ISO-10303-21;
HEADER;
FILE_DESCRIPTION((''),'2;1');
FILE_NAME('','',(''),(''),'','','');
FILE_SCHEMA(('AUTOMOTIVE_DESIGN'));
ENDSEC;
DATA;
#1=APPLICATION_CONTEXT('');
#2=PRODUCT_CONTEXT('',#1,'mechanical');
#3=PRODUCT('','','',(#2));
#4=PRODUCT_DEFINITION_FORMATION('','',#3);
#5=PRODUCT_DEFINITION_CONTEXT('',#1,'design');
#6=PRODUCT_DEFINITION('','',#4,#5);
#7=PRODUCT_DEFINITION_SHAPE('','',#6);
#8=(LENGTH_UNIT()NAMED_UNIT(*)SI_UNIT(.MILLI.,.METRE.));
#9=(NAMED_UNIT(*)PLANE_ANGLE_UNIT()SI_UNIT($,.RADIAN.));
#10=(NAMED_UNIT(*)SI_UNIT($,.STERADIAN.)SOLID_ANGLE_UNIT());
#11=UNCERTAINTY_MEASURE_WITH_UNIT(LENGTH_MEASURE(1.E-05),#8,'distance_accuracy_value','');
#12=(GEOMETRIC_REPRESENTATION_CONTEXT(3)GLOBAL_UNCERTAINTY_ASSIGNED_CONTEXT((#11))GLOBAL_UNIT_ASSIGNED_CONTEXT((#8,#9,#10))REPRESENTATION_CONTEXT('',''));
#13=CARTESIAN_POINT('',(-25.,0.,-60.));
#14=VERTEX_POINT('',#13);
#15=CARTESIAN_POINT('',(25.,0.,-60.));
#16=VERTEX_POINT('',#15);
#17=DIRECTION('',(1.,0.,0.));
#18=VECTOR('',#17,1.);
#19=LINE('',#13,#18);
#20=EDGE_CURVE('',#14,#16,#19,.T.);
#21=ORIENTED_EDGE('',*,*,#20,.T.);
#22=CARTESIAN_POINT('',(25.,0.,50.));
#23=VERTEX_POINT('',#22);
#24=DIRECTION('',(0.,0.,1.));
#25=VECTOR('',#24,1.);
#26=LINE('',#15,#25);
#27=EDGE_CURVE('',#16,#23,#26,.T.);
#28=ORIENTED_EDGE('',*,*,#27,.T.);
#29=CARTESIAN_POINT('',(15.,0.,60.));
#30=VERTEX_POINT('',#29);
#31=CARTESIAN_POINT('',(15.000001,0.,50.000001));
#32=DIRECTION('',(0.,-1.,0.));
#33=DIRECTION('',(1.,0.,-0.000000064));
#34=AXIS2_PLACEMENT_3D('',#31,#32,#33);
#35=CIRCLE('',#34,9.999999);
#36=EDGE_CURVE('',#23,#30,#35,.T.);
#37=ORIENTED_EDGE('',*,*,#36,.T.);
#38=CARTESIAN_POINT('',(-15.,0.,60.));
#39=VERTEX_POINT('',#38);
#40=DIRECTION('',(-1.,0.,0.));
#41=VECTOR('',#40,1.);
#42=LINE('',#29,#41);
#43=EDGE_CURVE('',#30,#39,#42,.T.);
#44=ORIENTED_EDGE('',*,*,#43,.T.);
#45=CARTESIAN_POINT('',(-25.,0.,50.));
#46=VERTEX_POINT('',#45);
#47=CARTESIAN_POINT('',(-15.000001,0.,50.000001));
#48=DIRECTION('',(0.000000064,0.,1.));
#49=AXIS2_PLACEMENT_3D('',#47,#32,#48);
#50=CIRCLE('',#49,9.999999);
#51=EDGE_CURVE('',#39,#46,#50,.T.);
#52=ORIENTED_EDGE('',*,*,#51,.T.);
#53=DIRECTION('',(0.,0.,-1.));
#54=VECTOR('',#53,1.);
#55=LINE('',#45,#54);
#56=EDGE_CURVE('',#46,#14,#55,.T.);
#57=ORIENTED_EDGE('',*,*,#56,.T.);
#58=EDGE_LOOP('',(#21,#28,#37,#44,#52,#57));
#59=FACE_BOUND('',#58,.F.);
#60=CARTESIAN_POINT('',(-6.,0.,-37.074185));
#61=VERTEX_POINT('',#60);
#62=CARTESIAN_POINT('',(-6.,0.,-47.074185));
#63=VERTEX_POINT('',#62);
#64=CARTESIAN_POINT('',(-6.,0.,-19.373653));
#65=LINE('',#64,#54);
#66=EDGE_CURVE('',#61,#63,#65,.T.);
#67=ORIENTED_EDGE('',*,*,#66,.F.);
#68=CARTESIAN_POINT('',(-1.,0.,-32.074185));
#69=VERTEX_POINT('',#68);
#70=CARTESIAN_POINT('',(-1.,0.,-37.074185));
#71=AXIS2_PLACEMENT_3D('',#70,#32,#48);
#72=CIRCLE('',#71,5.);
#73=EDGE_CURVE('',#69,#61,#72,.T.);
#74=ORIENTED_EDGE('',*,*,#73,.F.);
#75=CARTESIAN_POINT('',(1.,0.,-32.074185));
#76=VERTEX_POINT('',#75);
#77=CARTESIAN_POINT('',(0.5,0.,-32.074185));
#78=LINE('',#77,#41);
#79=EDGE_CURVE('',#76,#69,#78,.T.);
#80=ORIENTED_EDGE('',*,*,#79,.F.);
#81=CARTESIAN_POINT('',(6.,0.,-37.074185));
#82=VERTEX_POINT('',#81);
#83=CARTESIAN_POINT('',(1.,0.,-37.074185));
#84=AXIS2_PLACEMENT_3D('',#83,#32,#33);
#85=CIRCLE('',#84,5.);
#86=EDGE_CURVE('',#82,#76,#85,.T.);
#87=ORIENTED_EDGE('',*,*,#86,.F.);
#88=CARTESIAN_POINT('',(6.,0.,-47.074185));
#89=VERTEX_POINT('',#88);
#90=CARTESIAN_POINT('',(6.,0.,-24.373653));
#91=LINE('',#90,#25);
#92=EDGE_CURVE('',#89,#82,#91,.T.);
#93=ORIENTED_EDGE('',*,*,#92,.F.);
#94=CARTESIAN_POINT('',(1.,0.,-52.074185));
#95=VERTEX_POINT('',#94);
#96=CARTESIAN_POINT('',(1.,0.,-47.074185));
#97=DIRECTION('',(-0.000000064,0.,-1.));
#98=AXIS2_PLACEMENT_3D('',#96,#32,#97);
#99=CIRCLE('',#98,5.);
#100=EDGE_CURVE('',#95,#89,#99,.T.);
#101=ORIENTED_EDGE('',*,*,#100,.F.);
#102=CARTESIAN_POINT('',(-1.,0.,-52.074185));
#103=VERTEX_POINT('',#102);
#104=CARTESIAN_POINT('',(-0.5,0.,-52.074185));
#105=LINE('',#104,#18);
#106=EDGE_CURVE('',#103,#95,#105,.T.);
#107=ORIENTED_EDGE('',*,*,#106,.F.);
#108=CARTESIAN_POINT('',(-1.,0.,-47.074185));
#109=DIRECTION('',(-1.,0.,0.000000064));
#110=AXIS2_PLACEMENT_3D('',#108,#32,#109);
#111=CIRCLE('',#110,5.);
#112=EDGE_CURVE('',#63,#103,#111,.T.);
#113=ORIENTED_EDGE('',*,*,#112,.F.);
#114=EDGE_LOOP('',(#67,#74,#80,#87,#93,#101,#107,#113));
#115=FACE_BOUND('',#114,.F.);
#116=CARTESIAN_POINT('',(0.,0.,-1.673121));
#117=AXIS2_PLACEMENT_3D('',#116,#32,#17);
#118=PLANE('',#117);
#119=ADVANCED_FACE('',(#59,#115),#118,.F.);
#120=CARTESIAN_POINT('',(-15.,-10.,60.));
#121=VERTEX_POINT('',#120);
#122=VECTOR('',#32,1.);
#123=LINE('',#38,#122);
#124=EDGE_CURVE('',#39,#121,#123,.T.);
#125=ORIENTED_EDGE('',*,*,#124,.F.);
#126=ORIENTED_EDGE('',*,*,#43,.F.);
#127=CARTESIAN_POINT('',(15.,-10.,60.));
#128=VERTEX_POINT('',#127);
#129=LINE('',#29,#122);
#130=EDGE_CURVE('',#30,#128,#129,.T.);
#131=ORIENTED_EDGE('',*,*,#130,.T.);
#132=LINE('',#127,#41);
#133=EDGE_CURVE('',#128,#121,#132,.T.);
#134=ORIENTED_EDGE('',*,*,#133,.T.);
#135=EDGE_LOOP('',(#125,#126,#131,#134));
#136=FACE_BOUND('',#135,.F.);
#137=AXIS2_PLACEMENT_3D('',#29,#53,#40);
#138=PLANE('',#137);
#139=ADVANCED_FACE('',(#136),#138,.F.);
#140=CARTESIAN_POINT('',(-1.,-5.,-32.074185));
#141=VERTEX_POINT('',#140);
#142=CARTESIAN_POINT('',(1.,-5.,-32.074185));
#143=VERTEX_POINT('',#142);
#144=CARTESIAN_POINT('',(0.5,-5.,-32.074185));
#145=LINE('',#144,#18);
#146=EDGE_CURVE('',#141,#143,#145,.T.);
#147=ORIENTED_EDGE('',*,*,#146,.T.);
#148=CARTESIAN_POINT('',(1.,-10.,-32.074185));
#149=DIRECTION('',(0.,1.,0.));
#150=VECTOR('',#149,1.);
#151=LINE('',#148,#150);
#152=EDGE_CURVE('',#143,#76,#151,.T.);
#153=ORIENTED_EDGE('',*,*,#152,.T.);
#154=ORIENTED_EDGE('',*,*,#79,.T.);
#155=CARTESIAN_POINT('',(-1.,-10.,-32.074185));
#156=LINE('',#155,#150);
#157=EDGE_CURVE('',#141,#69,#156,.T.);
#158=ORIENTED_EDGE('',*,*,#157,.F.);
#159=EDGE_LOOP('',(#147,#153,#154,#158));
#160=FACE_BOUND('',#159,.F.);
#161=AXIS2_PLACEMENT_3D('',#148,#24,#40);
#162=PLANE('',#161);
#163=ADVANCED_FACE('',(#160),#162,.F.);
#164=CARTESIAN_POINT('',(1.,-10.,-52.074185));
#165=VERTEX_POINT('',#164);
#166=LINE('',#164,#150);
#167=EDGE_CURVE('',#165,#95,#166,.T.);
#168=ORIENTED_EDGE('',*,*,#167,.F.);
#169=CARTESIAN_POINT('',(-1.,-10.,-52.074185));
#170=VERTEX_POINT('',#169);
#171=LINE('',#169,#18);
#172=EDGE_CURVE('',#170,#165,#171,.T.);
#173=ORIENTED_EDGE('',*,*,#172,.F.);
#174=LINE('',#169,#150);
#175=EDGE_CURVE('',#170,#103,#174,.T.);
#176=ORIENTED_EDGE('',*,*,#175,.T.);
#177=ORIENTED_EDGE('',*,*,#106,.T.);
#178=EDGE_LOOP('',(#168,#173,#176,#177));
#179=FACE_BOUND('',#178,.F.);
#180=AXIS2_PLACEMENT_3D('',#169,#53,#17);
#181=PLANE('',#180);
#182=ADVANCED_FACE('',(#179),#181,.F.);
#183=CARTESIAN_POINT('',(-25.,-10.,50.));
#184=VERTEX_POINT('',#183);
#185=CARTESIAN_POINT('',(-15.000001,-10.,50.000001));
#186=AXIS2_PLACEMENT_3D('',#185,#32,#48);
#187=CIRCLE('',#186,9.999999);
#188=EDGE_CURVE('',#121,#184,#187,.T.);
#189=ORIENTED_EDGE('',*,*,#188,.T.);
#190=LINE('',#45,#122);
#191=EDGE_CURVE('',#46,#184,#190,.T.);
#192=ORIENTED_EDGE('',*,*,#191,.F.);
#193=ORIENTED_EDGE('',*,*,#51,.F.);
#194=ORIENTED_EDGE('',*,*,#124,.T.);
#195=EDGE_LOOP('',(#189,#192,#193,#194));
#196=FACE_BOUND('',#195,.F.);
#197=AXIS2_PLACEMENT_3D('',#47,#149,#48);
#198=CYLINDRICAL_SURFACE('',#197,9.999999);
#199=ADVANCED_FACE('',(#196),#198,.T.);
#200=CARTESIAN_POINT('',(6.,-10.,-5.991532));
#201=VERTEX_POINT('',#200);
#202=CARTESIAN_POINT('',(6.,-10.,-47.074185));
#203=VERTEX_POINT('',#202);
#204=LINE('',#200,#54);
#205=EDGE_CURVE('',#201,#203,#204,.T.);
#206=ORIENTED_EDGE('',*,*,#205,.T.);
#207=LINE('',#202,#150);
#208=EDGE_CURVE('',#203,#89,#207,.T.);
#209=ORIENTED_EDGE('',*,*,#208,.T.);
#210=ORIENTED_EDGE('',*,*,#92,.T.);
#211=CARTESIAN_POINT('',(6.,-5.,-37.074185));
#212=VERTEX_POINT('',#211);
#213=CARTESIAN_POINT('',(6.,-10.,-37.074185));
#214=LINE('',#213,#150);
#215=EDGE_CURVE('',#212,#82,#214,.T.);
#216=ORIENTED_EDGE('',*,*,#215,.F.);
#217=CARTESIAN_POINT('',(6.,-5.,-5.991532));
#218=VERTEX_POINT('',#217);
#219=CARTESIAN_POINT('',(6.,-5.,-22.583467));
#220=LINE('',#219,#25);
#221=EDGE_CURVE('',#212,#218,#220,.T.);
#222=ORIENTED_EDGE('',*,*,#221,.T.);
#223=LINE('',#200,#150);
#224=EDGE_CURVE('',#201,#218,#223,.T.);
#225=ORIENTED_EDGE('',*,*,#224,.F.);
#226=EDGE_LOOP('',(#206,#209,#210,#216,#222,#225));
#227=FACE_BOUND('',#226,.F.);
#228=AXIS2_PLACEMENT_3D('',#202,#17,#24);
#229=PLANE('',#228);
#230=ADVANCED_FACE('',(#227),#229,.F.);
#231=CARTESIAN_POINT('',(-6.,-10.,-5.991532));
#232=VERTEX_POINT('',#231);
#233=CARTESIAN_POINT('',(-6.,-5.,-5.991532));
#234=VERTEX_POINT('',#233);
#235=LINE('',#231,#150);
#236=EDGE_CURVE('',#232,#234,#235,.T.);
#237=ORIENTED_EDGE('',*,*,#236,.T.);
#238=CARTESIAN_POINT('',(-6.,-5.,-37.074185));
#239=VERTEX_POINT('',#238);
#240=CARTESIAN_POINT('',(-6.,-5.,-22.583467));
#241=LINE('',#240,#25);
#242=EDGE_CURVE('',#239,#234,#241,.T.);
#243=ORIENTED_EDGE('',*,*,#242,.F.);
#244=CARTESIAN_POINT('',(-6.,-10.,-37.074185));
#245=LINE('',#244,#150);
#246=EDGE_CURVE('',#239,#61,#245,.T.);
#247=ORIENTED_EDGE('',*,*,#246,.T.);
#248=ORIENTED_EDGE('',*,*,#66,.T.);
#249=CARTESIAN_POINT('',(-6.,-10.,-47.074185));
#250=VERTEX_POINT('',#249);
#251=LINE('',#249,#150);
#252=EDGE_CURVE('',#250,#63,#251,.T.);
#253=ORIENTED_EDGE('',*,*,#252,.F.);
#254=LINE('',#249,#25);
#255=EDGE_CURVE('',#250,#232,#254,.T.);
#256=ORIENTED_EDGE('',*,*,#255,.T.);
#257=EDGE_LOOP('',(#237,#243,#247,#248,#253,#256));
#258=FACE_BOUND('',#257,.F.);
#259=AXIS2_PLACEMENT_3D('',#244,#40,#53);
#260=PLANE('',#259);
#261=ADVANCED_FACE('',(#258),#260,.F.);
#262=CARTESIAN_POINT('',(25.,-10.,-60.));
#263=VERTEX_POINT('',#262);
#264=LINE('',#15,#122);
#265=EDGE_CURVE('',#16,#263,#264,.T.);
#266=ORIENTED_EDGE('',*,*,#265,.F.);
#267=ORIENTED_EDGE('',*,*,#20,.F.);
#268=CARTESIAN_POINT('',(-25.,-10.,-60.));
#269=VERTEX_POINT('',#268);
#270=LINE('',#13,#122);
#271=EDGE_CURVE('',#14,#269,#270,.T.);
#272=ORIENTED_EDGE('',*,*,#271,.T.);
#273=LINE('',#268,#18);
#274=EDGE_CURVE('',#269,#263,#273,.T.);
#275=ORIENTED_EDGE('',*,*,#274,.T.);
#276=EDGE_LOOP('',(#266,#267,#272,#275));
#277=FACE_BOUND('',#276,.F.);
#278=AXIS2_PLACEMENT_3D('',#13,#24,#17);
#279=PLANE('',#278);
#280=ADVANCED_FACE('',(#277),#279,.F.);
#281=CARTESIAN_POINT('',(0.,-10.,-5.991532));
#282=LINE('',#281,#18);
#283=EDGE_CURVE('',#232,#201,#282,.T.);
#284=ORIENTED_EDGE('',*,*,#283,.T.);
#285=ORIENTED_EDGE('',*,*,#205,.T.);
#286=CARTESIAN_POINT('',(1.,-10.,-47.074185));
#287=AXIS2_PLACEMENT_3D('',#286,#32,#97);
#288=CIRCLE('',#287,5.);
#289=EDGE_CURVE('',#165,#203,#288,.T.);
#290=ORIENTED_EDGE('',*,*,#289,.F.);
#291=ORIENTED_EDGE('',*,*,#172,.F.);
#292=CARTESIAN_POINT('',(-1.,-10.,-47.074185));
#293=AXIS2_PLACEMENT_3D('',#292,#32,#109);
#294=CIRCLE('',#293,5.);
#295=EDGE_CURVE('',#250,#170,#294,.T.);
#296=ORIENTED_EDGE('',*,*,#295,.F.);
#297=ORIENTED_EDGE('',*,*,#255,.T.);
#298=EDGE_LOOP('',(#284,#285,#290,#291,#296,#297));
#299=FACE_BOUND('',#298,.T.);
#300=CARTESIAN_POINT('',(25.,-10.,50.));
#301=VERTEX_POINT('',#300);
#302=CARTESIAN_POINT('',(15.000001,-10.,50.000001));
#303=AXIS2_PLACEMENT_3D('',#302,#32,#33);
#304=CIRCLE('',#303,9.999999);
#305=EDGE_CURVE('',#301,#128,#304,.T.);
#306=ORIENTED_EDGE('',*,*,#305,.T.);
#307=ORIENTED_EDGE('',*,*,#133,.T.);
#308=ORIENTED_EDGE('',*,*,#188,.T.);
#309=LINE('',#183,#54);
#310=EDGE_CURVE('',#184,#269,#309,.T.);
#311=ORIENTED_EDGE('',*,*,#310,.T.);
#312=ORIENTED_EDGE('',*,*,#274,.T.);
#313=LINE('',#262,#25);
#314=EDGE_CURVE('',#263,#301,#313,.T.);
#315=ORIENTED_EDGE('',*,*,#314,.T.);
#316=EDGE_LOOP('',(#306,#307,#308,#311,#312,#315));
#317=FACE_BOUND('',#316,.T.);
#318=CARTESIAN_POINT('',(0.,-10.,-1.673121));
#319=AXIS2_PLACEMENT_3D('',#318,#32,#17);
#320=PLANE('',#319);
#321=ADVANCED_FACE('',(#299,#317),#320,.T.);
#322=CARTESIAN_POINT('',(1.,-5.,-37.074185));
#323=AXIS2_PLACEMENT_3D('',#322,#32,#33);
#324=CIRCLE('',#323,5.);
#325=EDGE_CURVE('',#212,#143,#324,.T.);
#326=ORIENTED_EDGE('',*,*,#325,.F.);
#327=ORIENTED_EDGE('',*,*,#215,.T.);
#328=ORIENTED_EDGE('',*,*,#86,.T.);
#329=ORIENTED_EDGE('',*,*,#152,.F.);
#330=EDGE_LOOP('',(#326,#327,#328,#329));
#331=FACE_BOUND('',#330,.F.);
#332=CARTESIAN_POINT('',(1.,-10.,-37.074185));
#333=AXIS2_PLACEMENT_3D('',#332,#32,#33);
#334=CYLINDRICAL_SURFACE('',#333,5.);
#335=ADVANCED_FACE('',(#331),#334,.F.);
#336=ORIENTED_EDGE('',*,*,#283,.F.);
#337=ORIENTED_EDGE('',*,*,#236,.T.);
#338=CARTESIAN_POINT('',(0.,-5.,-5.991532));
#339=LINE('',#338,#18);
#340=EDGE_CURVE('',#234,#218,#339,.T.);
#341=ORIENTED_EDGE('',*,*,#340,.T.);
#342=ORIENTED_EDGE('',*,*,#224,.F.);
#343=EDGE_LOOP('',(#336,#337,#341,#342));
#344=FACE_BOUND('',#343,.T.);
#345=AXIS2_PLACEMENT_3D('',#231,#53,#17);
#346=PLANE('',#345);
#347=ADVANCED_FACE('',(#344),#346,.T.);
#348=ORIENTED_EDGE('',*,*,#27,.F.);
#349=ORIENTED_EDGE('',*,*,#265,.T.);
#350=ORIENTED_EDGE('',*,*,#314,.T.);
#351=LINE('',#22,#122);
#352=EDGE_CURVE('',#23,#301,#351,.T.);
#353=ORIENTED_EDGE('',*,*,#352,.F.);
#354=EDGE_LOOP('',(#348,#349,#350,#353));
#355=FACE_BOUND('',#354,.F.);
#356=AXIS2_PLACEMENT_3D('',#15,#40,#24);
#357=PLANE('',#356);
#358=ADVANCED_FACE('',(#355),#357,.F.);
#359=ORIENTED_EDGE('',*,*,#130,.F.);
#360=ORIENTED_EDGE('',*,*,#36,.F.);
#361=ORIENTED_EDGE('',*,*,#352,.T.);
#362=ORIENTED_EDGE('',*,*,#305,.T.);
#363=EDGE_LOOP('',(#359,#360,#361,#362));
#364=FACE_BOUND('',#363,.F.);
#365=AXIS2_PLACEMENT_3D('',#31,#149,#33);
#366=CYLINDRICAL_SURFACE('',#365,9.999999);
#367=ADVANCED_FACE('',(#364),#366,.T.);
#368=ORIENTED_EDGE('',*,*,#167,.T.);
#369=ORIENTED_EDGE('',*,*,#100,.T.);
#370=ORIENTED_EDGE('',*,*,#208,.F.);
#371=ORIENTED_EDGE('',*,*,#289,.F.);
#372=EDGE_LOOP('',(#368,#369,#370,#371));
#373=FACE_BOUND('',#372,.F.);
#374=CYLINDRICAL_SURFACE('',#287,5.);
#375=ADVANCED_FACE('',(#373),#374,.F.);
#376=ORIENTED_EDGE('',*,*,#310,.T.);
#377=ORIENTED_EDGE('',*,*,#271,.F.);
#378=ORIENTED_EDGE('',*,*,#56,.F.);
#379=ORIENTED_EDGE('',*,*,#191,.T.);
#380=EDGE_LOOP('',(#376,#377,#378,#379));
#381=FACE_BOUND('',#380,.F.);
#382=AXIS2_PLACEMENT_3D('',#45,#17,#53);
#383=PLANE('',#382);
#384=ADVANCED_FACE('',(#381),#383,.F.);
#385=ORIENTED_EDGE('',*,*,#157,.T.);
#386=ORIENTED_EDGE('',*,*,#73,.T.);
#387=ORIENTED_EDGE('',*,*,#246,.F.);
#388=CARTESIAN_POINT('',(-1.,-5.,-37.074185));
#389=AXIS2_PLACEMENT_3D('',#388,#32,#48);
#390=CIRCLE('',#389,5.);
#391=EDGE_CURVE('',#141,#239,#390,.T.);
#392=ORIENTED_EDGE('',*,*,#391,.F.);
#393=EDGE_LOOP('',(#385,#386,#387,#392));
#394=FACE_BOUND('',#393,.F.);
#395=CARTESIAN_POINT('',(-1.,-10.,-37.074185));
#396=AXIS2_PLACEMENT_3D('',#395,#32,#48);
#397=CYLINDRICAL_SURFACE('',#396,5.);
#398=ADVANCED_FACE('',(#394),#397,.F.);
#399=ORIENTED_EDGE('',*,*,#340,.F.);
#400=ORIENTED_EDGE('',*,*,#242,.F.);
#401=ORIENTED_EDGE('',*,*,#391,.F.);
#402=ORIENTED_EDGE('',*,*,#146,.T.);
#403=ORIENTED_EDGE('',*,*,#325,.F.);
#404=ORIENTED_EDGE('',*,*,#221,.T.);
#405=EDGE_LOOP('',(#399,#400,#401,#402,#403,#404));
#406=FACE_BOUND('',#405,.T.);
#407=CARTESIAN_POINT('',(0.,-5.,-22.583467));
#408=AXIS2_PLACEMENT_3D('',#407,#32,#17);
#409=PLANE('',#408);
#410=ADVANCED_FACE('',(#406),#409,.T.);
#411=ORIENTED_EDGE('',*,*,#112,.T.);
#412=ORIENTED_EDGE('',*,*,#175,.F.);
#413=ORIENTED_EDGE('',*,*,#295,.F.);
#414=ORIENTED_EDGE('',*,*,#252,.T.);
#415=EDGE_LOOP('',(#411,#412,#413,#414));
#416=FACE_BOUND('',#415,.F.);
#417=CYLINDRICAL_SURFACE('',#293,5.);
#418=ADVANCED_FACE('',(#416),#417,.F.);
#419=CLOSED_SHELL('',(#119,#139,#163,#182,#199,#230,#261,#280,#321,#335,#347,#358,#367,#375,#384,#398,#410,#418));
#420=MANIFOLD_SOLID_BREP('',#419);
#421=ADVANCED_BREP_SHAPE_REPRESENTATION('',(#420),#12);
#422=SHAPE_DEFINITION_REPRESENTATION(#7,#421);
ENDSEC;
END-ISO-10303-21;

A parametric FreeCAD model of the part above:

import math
import FreeCAD as App
import Part
import Sketcher
from FreeCAD import Vector
Q = App.Units.Quantity

doc = App.newDocument("Part")
body = doc.addObject("PartDesign::Body", "Body")

sketch1 = body.newObject("Sketcher::SketchObject", "Sketch")
sketch1.AttachmentSupport = (doc.getObject("XZ_Plane"), [""])
sketch1.MapMode = "FlatFace"
sketch1.addGeometry(Part.ArcOfCircle(Part.Circle(Vector(15, 50, 0), Vector(0, 0, 1), 10), math.radians(0), math.radians(90)), False)
sketch1.addGeometry(Part.LineSegment(Vector(15, 60, 0), Vector(-15, 60, 0)), False)
sketch1.addGeometry(Part.ArcOfCircle(Part.Circle(Vector(-15, 50, 0), Vector(0, 0, 1), 10), math.radians(90), math.radians(180)), False)
sketch1.addGeometry(Part.LineSegment(Vector(-25, 50, 0), Vector(-25, -60, 0)), False)
sketch1.addGeometry(Part.LineSegment(Vector(-25, -60, 0), Vector(25, -60, 0)), False)
sketch1.addGeometry(Part.LineSegment(Vector(25, -60, 0), Vector(25, 50, 0)), False)
sketch1.addConstraint(Sketcher.Constraint("Tangent", 0, 2, 1, 1))
sketch1.addConstraint(Sketcher.Constraint("Tangent", 1, 2, 2, 1))
sketch1.addConstraint(Sketcher.Constraint("Tangent", 2, 2, 3, 1))
sketch1.addConstraint(Sketcher.Constraint("Coincident", 3, 2, 4, 1))
sketch1.addConstraint(Sketcher.Constraint("Coincident", 4, 2, 5, 1))
sketch1.addConstraint(Sketcher.Constraint("Tangent", 5, 2, 0, 1))
sketch1.addConstraint(Sketcher.Constraint("Horizontal", 1))
sketch1.addConstraint(Sketcher.Constraint("Vertical", 3))
sketch1.addConstraint(Sketcher.Constraint("Horizontal", 4))
sketch1.addConstraint(Sketcher.Constraint("Vertical", 5))
sketch1.addConstraint(Sketcher.Constraint("Equal", 0, 2))
sketch1.addConstraint(Sketcher.Constraint("Radius", 0, Q("9.999999 mm")))
sketch1.addConstraint(Sketcher.Constraint("DistanceX", 1, 2, 1, 1, Q("30 mm")))
sketch1.addConstraint(Sketcher.Constraint("DistanceY", 3, 2, 3, 1, Q("110 mm")))
sketch1.addConstraint(Sketcher.Constraint("DistanceX", -1, 1, 0, 3, Q("15.000001 mm")))
sketch1.addConstraint(Sketcher.Constraint("DistanceY", -1, 1, 0, 3, Q("50.000001 mm")))
pad1 = body.newObject("PartDesign::Pad", "Pad")
pad1.Profile = sketch1
pad1.Length = 10

sketch2 = body.newObject("Sketcher::SketchObject", "Sketch001")
sketch2.AttachmentSupport = (doc.getObject("XZ_Plane"), [""])
sketch2.MapMode = "FlatFace"
sketch2.AttachmentOffset = App.Placement(Vector(0, 0, 10), App.Rotation())
sketch2.addGeometry(Part.LineSegment(Vector(1, -32.1, 0), Vector(-1, -32.1, 0)), False)
sketch2.addGeometry(Part.ArcOfCircle(Part.Circle(Vector(-1, -37.1, 0), Vector(0, 0, 1), 5), math.radians(90), math.radians(180)), False)
sketch2.addGeometry(Part.LineSegment(Vector(-6, -37.1, 0), Vector(-6, -47.1, 0)), False)
sketch2.addGeometry(Part.ArcOfCircle(Part.Circle(Vector(-1, -47.1, 0), Vector(0, 0, 1), 5), math.radians(180), math.radians(270)), False)
sketch2.addGeometry(Part.LineSegment(Vector(-1, -52.1, 0), Vector(1, -52.1, 0)), False)
sketch2.addGeometry(Part.ArcOfCircle(Part.Circle(Vector(1, -47.1, 0), Vector(0, 0, 1), 5), math.radians(-90), math.radians(0)), False)
sketch2.addGeometry(Part.LineSegment(Vector(6, -47.1, 0), Vector(6, -37.1, 0)), False)
sketch2.addGeometry(Part.ArcOfCircle(Part.Circle(Vector(1, -37.1, 0), Vector(0, 0, 1), 5), math.radians(0), math.radians(90)), False)
sketch2.addConstraint(Sketcher.Constraint("Tangent", 0, 2, 1, 1))
sketch2.addConstraint(Sketcher.Constraint("Tangent", 1, 2, 2, 1))
sketch2.addConstraint(Sketcher.Constraint("Tangent", 2, 2, 3, 1))
sketch2.addConstraint(Sketcher.Constraint("Tangent", 3, 2, 4, 1))
sketch2.addConstraint(Sketcher.Constraint("Tangent", 4, 2, 5, 1))
sketch2.addConstraint(Sketcher.Constraint("Tangent", 5, 2, 6, 1))
sketch2.addConstraint(Sketcher.Constraint("Tangent", 6, 2, 7, 1))
sketch2.addConstraint(Sketcher.Constraint("Tangent", 7, 2, 0, 1))
sketch2.addConstraint(Sketcher.Constraint("Horizontal", 0))
sketch2.addConstraint(Sketcher.Constraint("Vertical", 2))
sketch2.addConstraint(Sketcher.Constraint("Horizontal", 4))
sketch2.addConstraint(Sketcher.Constraint("Vertical", 6))
sketch2.addConstraint(Sketcher.Constraint("Equal", 1, 3))
sketch2.addConstraint(Sketcher.Constraint("Equal", 3, 5))
sketch2.addConstraint(Sketcher.Constraint("Equal", 5, 7))
sketch2.addConstraint(Sketcher.Constraint("Radius", 1, Q("5 mm")))
sketch2.addConstraint(Sketcher.Constraint("DistanceX", 0, 2, 0, 1, Q("2 mm")))
sketch2.addConstraint(Sketcher.Constraint("DistanceY", 2, 2, 2, 1, Q("10 mm")))
sketch2.addConstraint(Sketcher.Constraint("DistanceX", 1, 3, -1, 1, Q("1 mm")))
sketch2.addConstraint(Sketcher.Constraint("DistanceY", 1, 3, -1, 1, Q("37.074185 mm")))
pocket1 = body.newObject("PartDesign::Pocket", "Pocket")
pocket1.Profile = sketch2
pocket1.Length = 11

sketch3 = body.newObject("Sketcher::SketchObject", "Sketch002")
sketch3.AttachmentSupport = (doc.getObject("XZ_Plane"), [""])
sketch3.MapMode = "FlatFace"
sketch3.AttachmentOffset = App.Placement(Vector(0, 0, 10), App.Rotation())
sketch3.addGeometry(Part.LineSegment(Vector(-6, -6, 0), Vector(-6, -39, 0)), False)
sketch3.addGeometry(Part.LineSegment(Vector(-6, -39, 0), Vector(6, -39, 0)), False)
sketch3.addGeometry(Part.LineSegment(Vector(6, -39, 0), Vector(6, -6, 0)), False)
sketch3.addGeometry(Part.LineSegment(Vector(6, -6, 0), Vector(-6, -6, 0)), False)
sketch3.addConstraint(Sketcher.Constraint("Coincident", 0, 2, 1, 1))
sketch3.addConstraint(Sketcher.Constraint("Coincident", 1, 2, 2, 1))
sketch3.addConstraint(Sketcher.Constraint("Coincident", 2, 2, 3, 1))
sketch3.addConstraint(Sketcher.Constraint("Coincident", 3, 2, 0, 1))
sketch3.addConstraint(Sketcher.Constraint("Vertical", 0))
sketch3.addConstraint(Sketcher.Constraint("Horizontal", 1))
sketch3.addConstraint(Sketcher.Constraint("Vertical", 2))
sketch3.addConstraint(Sketcher.Constraint("Horizontal", 3))
sketch3.addConstraint(Sketcher.Constraint("DistanceX", 1, 1, 1, 2, Q("12 mm")))
sketch3.addConstraint(Sketcher.Constraint("DistanceX", 0, 2, -1, 1, Q("6 mm")))
sketch3.addConstraint(Sketcher.Constraint("DistanceY", 0, 2, 0, 1, Q("33.18387 mm")))
sketch3.addConstraint(Sketcher.Constraint("DistanceY", 0, 2, -1, 1, Q("39.175402 mm")))
pocket2 = body.newObject("PartDesign::Pocket", "Pocket001")
pocket2.Profile = sketch3
pocket2.Length = 5

doc.recompute()
